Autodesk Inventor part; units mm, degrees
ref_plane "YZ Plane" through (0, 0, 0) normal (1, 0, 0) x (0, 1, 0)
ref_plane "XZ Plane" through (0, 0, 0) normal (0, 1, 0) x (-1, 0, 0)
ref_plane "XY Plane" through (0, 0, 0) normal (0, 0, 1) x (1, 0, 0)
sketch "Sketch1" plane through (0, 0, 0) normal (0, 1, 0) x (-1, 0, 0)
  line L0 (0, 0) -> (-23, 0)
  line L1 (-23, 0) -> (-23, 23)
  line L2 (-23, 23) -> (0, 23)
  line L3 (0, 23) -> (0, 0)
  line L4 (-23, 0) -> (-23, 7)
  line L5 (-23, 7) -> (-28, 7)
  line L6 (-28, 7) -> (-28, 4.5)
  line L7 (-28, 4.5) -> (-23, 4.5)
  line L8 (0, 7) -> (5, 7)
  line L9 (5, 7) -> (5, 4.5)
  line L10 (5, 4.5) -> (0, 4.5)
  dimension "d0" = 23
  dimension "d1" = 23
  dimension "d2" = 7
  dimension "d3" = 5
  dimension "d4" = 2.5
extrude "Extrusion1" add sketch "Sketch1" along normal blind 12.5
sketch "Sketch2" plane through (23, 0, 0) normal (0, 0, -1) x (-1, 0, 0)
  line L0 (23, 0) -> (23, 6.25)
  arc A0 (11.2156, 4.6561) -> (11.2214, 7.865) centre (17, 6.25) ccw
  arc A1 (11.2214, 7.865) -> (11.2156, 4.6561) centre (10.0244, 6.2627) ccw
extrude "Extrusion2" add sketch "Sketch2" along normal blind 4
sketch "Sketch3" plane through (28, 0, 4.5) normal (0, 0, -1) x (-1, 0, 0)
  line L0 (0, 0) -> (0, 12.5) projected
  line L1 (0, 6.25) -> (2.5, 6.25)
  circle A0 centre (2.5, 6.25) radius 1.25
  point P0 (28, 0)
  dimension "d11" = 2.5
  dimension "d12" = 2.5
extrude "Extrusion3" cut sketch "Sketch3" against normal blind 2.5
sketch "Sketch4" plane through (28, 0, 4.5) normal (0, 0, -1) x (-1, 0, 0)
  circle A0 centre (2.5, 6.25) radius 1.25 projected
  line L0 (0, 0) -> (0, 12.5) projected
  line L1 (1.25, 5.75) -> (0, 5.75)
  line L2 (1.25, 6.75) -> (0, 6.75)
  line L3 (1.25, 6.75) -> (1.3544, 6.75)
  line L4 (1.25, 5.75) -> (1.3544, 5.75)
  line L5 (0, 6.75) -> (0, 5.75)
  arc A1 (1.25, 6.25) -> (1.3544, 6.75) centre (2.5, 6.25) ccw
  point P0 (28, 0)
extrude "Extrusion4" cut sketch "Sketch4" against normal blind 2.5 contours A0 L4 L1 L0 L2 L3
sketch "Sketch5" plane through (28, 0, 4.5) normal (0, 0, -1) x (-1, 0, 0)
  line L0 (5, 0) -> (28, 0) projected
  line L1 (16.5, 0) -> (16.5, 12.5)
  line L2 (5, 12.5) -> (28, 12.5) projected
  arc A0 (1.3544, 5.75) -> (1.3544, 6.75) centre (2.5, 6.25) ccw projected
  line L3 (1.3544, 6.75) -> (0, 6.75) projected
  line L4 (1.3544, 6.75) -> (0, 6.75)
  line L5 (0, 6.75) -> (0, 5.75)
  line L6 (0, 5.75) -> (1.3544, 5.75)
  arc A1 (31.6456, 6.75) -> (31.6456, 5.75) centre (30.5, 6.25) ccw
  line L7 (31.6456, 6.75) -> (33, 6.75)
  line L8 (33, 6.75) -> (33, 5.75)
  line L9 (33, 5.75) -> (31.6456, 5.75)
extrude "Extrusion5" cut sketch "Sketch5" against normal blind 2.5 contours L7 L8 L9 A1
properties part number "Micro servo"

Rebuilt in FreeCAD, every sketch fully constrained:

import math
import FreeCAD as App
import Part
import Sketcher

V = App.Vector
Q = App.Units.Quantity

doc = App.newDocument("Part")
body = doc.addObject("PartDesign::Body", "Body")

# Sketch on XZ plane
sketch1 = body.newObject("Sketcher::SketchObject", "Sketch")
sketch1.AttachmentSupport = (doc.getObject("XZ_Plane"), [""])
sketch1.MapMode = "FlatFace"
sketch1.addGeometry(Part.LineSegment(V(23, 0, 0), V(0, 0, 0)), False)
sketch1.addGeometry(Part.LineSegment(V(0, 0, 0), V(0, 4.5, 0)), False)
sketch1.addGeometry(Part.LineSegment(V(0, 4.5, 0), V(-5, 4.5, 0)), False)
sketch1.addGeometry(Part.LineSegment(V(-5, 4.5, 0), V(-5, 7, 0)), False)
sketch1.addGeometry(Part.LineSegment(V(-5, 7, 0), V(0, 7, 0)), False)
sketch1.addGeometry(Part.LineSegment(V(0, 7, 0), V(0, 23, 0)), False)
sketch1.addGeometry(Part.LineSegment(V(0, 23, 0), V(23, 23, 0)), False)
sketch1.addGeometry(Part.LineSegment(V(23, 23, 0), V(23, 7, 0)), False)
sketch1.addGeometry(Part.LineSegment(V(23, 7, 0), V(28, 7, 0)), False)
sketch1.addGeometry(Part.LineSegment(V(28, 7, 0), V(28, 4.5, 0)), False)
sketch1.addGeometry(Part.LineSegment(V(28, 4.5, 0), V(23, 4.5, 0)), False)
sketch1.addGeometry(Part.LineSegment(V(23, 4.5, 0), V(23, 0, 0)), False)
sketch1.addConstraint(Sketcher.Constraint("Coincident", 0, 2, 1, 1))
sketch1.addConstraint(Sketcher.Constraint("Coincident", 1, 2, 2, 1))
sketch1.addConstraint(Sketcher.Constraint("Coincident", 2, 2, 3, 1))
sketch1.addConstraint(Sketcher.Constraint("Coincident", 3, 2, 4, 1))
sketch1.addConstraint(Sketcher.Constraint("Coincident", 4, 2, 5, 1))
sketch1.addConstraint(Sketcher.Constraint("Coincident", 5, 2, 6, 1))
sketch1.addConstraint(Sketcher.Constraint("Coincident", 6, 2, 7, 1))
sketch1.addConstraint(Sketcher.Constraint("Coincident", 7, 2, 8, 1))
sketch1.addConstraint(Sketcher.Constraint("Coincident", 8, 2, 9, 1))
sketch1.addConstraint(Sketcher.Constraint("Coincident", 9, 2, 10, 1))
sketch1.addConstraint(Sketcher.Constraint("Coincident", 10, 2, 11, 1))
sketch1.addConstraint(Sketcher.Constraint("Coincident", 11, 2, 0, 1))
sketch1.addConstraint(Sketcher.Constraint("Horizontal", 0))
sketch1.addConstraint(Sketcher.Constraint("Vertical", 1))
sketch1.addConstraint(Sketcher.Constraint("Horizontal", 2))
sketch1.addConstraint(Sketcher.Constraint("Vertical", 3))
sketch1.addConstraint(Sketcher.Constraint("Horizontal", 4))
sketch1.addConstraint(Sketcher.Constraint("Vertical", 5))
sketch1.addConstraint(Sketcher.Constraint("Horizontal", 6))
sketch1.addConstraint(Sketcher.Constraint("Vertical", 7))
sketch1.addConstraint(Sketcher.Constraint("Horizontal", 8))
sketch1.addConstraint(Sketcher.Constraint("Vertical", 9))
sketch1.addConstraint(Sketcher.Constraint("Horizontal", 10))
sketch1.addConstraint(Sketcher.Constraint("Vertical", 11))
sketch1.addConstraint(Sketcher.Constraint("Coincident", 0, 2, -1, 1))
sketch1.addConstraint(Sketcher.Constraint("PointOnObject", 4, 2, -2))
sketch1.addConstraint(Sketcher.Constraint("Horizontal", 4, 2, 7, 2))
sketch1.addConstraint(Sketcher.Constraint("Horizontal", 2, 2, 9, 2))
sketch1.addConstraint(Sketcher.Constraint("Vertical", 7, 2, 10, 2))
sketch1.addConstraint(Sketcher.Constraint("Equal", 4, 8))
sketch1.addConstraint(Sketcher.Constraint("DistanceX", 0, 2, 0, 1, Q("23 mm")))
sketch1.addConstraint(Sketcher.Constraint("DistanceX", 2, 2, 2, 1, Q("5 mm")))
sketch1.addConstraint(Sketcher.Constraint("DistanceY", 3, 1, 3, 2, Q("2.5 mm")))
sketch1.addConstraint(Sketcher.Constraint("DistanceY", -1, 1, 3, 2, Q("7 mm")))
sketch1.addConstraint(Sketcher.Constraint("DistanceY", -1, 1, 5, 2, Q("23 mm")))
pad1 = body.newObject("PartDesign::Pad", "Pad")
pad1.Profile = sketch1
pad1.Length = 12.5
pad1.Reversed = True

# Sketch on XY plane
sketch2 = body.newObject("Sketcher::SketchObject", "Sketch001")
sketch2.AttachmentSupport = (doc.getObject("XY_Plane"), [""])
sketch2.MapMode = "FlatFace"
sketch2.addGeometry(Part.ArcOfCircle(Part.Circle(V(13, 6.3, 0), V(0, 0, 1), 2), math.radians(-127), math.radians(127)), False)
sketch2.addGeometry(Part.ArcOfCircle(Part.Circle(V(6, 6.2, 0), V(0, 0, 1), 6), math.radians(16), math.radians(345)), False)
sketch2.addConstraint(Sketcher.Constraint("Coincident", 0, 1, 1, 2))
sketch2.addConstraint(Sketcher.Constraint("Coincident", 1, 1, 0, 2))
sketch2.addConstraint(Sketcher.Constraint("Radius", 0, Q("2 mm")))
sketch2.addConstraint(Sketcher.Constraint("Radius", 1, Q("6 mm")))
sketch2.addConstraint(Sketcher.Constraint("DistanceX", -1, 1, 1, 3, Q("6 mm")))
sketch2.addConstraint(Sketcher.Constraint("DistanceY", -1, 1, 1, 3, Q("6.25 mm")))
sketch2.addConstraint(Sketcher.Constraint("DistanceY", -1, 1, 0, 1, Q("4.656 mm")))
sketch2.addConstraint(Sketcher.Constraint("DistanceY", -1, 1, 1, 1, Q("7.865 mm")))
pad2 = body.newObject("PartDesign::Pad", "Pad001")
pad2.Profile = sketch2
pad2.Length = 4
pad2.Reversed = True

# Sketch on XY plane
sketch3 = body.newObject("Sketcher::SketchObject", "Sketch002")
sketch3.AttachmentSupport = (doc.getObject("XY_Plane"), [""])
sketch3.MapMode = "FlatFace"
sketch3.AttachmentOffset = App.Placement(V(0, 0, 4.5), App.Rotation())
sketch3.addGeometry(Part.Circle(V(25.5, 6.2, 0), V(0, 0, 1), 1.2), False)
sketch3.addConstraint(Sketcher.Constraint("Diameter", 0, Q("2.5 mm")))
sketch3.addConstraint(Sketcher.Constraint("DistanceX", -1, 1, 0, 3, Q("25.5 mm")))
sketch3.addConstraint(Sketcher.Constraint("DistanceY", -1, 1, 0, 3, Q("6.25 mm")))
pocket1 = body.newObject("PartDesign::Pocket", "Pocket")
pocket1.Profile = sketch3
pocket1.Length = 2.5
pocket1.Reversed = True

# Sketch on XY plane
sketch4 = body.newObject("Sketcher::SketchObject", "Sketch003")
sketch4.AttachmentSupport = (doc.getObject("XY_Plane"), [""])
sketch4.MapMode = "FlatFace"
sketch4.AttachmentOffset = App.Placement(V(0, 0, 4.5), App.Rotation())
sketch4.addGeometry(Part.ArcOfCircle(Part.Circle(V(25.5, 6.2, 0), V(0, 0, 1), 1.2), math.radians(-24), math.radians(24)), False)
sketch4.addGeometry(Part.LineSegment(V(26.6, 6.8, 0), V(28, 6.8, 0)), False)
sketch4.addGeometry(Part.LineSegment(V(28, 6.8, 0), V(28, 5.8, 0)), False)
sketch4.addGeometry(Part.LineSegment(V(28, 5.8, 0), V(26.6, 5.8, 0)), False)
sketch4.addConstraint(Sketcher.Constraint("Coincident", 0, 2, 1, 1))
sketch4.addConstraint(Sketcher.Constraint("Coincident", 1, 2, 2, 1))
sketch4.addConstraint(Sketcher.Constraint("Coincident", 2, 2, 3, 1))
sketch4.addConstraint(Sketcher.Constraint("Coincident", 3, 2, 0, 1))
sketch4.addConstraint(Sketcher.Constraint("Horizontal", 1))
sketch4.addConstraint(Sketcher.Constraint("Vertical", 2))
sketch4.addConstraint(Sketcher.Constraint("Horizontal", 3))
sketch4.addConstraint(Sketcher.Constraint("Vertical", 0, 2, 3, 2))
sketch4.addConstraint(Sketcher.Constraint("DistanceY", 2, 2, 2, 1, Q("1 mm")))
sketch4.addConstraint(Sketcher.Constraint("Radius", 0, Q("1.25 mm")))
sketch4.addConstraint(Sketcher.Constraint("DistanceX", -1, 1, 1, 2, Q("28 mm")))
sketch4.addConstraint(Sketcher.Constraint("DistanceX", -1, 1, 0, 3, Q("25.5 mm")))
sketch4.addConstraint(Sketcher.Constraint("DistanceY", -1, 1, 0, 3, Q("6.25 mm")))
pocket2 = body.newObject("PartDesign::Pocket", "Pocket001")
pocket2.Profile = sketch4
pocket2.Length = 2.5
pocket2.Reversed = True

# Sketch on XY plane
sketch5 = body.newObject("Sketcher::SketchObject", "Sketch004")
sketch5.AttachmentSupport = (doc.getObject("XY_Plane"), [""])
sketch5.MapMode = "FlatFace"
sketch5.AttachmentOffset = App.Placement(V(0, 0, 4.5), App.Rotation())
sketch5.addGeometry(Part.LineSegment(V(-5, 6.8, 0), V(-3.6, 6.8, 0)), False)
sketch5.addGeometry(Part.ArcOfCircle(Part.Circle(V(-2.5, 6.2, 0), V(0, 0, 1), 1.2), math.radians(-156), math.radians(156)), False)
sketch5.addGeometry(Part.LineSegment(V(-3.6, 5.8, 0), V(-5, 5.8, 0)), False)
sketch5.addGeometry(Part.LineSegment(V(-5, 5.8, 0), V(-5, 6.8, 0)), False)
sketch5.addConstraint(Sketcher.Constraint("Coincident", 0, 2, 1, 2))
sketch5.addConstraint(Sketcher.Constraint("Coincident", 1, 1, 2, 1))
sketch5.addConstraint(Sketcher.Constraint("Coincident", 2, 2, 3, 1))
sketch5.addConstraint(Sketcher.Constraint("Coincident", 3, 2, 0, 1))
sketch5.addConstraint(Sketcher.Constraint("Horizontal", 0))
sketch5.addConstraint(Sketcher.Constraint("Horizontal", 2))
sketch5.addConstraint(Sketcher.Constraint("Vertical", 3))
sketch5.addConstraint(Sketcher.Constraint("Vertical", 0, 2, 1, 1))
sketch5.addConstraint(Sketcher.Constraint("DistanceY", 3, 1, 3, 2, Q("1 mm")))
sketch5.addConstraint(Sketcher.Constraint("Radius", 1, Q("1.25 mm")))
sketch5.addConstraint(Sketcher.Constraint("DistanceX", 2, 2, -1, 1, Q("5 mm")))
sketch5.addConstraint(Sketcher.Constraint("DistanceX", 1, 3, -1, 1, Q("2.5 mm")))
sketch5.addConstraint(Sketcher.Constraint("DistanceY", -1, 1, 1, 3, Q("6.25 mm")))
pocket3 = body.newObject("PartDesign::Pocket", "Pocket002")
pocket3.Profile = sketch5
pocket3.Length = 2.5
pocket3.Reversed = True

doc.recompute()
